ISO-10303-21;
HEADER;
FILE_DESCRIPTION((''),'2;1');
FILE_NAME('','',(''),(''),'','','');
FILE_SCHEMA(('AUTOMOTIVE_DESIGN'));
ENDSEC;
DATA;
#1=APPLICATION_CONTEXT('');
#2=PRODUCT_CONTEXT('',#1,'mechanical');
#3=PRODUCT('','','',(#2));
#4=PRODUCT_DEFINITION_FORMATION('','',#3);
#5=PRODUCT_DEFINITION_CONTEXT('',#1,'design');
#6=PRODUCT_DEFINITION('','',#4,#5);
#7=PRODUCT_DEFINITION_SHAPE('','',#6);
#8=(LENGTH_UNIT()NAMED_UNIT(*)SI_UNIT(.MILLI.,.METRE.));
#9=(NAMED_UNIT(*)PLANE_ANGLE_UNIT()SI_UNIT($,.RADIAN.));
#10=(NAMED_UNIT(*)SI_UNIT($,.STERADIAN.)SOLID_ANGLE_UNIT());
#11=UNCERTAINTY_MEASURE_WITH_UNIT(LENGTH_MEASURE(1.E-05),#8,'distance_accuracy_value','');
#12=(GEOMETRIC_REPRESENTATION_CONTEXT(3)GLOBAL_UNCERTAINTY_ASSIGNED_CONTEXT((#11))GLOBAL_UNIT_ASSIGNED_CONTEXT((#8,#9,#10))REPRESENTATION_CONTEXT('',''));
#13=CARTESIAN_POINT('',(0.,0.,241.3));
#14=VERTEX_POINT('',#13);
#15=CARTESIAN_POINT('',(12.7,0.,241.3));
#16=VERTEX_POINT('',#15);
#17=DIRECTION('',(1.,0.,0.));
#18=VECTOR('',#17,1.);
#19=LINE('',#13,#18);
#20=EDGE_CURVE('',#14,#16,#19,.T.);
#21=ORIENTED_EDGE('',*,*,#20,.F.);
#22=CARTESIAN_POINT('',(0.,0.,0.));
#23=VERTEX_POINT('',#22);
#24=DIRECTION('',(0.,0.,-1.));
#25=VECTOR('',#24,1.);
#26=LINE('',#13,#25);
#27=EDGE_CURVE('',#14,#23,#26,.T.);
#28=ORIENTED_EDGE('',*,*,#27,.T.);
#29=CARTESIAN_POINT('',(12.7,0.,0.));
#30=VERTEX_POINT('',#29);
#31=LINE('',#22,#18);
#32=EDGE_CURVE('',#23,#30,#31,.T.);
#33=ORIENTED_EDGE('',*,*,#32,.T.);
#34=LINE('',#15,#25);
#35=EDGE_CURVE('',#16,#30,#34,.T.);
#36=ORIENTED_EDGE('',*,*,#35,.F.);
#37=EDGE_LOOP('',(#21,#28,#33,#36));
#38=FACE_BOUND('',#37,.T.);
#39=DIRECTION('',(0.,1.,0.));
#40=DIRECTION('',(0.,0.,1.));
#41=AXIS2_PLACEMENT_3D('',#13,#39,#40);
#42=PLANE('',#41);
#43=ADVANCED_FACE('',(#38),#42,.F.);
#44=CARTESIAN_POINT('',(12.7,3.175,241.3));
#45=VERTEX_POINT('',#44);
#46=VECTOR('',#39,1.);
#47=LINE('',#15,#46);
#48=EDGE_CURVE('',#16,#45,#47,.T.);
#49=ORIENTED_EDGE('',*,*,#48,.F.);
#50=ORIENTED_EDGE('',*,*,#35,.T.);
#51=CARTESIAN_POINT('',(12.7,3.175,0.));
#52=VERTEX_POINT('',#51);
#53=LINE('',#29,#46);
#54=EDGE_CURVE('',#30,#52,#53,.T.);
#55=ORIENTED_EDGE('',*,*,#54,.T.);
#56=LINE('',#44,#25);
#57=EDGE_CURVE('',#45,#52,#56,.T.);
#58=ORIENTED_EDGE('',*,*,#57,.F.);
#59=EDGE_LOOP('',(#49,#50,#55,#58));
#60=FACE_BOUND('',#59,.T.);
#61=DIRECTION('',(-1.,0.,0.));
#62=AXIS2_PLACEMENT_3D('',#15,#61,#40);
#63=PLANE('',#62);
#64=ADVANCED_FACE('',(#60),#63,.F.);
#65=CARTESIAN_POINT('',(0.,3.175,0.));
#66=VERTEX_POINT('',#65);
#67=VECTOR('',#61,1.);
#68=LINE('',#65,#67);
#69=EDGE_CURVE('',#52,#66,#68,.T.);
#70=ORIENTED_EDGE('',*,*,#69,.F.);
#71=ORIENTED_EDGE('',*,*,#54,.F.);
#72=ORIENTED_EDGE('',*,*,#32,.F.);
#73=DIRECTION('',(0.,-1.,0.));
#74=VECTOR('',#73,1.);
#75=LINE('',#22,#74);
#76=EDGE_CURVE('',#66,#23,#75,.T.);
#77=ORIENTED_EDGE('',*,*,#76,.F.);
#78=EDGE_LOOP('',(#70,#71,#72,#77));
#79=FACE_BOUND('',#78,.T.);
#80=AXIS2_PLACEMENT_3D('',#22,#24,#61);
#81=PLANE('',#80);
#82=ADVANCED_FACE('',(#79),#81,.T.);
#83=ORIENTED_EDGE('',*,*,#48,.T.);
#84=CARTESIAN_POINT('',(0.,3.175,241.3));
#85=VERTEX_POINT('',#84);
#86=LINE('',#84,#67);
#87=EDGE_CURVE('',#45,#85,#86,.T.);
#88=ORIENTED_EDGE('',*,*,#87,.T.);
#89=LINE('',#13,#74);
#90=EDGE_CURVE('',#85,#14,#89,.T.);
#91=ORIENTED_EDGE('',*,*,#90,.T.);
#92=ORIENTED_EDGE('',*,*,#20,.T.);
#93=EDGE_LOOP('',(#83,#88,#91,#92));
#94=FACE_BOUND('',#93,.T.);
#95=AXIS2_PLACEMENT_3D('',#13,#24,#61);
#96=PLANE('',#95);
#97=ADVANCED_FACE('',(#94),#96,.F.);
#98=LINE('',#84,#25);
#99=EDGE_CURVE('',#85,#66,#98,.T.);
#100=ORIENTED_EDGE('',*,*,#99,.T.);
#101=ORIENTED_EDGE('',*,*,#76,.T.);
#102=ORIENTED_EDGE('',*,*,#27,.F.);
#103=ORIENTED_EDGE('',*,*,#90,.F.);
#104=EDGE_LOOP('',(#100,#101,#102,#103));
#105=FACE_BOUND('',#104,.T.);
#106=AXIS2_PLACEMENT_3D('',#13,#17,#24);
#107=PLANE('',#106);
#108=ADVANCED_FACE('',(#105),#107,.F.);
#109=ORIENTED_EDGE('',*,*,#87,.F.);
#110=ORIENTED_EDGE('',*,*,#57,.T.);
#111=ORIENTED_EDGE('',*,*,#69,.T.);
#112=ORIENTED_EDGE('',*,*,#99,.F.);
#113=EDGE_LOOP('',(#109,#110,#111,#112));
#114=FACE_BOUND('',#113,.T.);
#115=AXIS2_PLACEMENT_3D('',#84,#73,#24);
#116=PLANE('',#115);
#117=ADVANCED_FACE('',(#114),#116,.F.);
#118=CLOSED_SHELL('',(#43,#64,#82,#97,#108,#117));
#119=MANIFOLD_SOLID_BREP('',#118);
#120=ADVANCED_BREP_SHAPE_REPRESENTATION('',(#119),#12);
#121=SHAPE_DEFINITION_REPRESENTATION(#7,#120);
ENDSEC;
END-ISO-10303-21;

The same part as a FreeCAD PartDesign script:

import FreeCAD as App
import Part
import Sketcher
from FreeCAD import Vector
Q = App.Units.Quantity


def add_polygon(sketch, points):
    """Adds a closed chain of lines whose ends are joined by coincident constraints."""
    first, n = sketch.GeometryCount, len(points)
    for a, b in zip(points, points[1:] + points[:1]):
        sketch.addGeometry(Part.LineSegment(App.Vector(*a, 0), App.Vector(*b, 0)), False)
    for i in range(n):
        sketch.addConstraint(Sketcher.Constraint("Coincident", first + i, 2, first + (i + 1) % n, 1))

doc = App.newDocument("Part")
body = doc.addObject("PartDesign::Body", "Body")

# Sketch on XY plane
sketch1 = doc.addObject("Sketcher::SketchObject", "Sketch")
body.addObject(sketch1)
sketch1.AttachmentSupport = (doc.XY_Plane, [""])
sketch1.MapMode = "FlatFace"
add_polygon(sketch1, [(0, 3.2), (0, 0), (12.7, 0), (12.7, 3.2)])  # lines 0-3
sketch1.addConstraint(Sketcher.Constraint("Vertical", 0))
sketch1.addConstraint(Sketcher.Constraint("Horizontal", 1))
sketch1.addConstraint(Sketcher.Constraint("Vertical", 2))
sketch1.addConstraint(Sketcher.Constraint("Horizontal", 3))
sketch1.addConstraint(Sketcher.Constraint("Coincident", 0, 2, -1, 1))
sketch1.addConstraint(Sketcher.Constraint("DistanceX", 1, 1, 1, 2, Q("0.5 in")))
sketch1.addConstraint(Sketcher.Constraint("DistanceY", 0, 2, 0, 1, Q("0.125 in")))
pad1 = doc.addObject("PartDesign::Pad", "Pad")
body.addObject(pad1)
pad1.Profile = sketch1
pad1.Length = Q("9.5 in")

doc.recompute()
